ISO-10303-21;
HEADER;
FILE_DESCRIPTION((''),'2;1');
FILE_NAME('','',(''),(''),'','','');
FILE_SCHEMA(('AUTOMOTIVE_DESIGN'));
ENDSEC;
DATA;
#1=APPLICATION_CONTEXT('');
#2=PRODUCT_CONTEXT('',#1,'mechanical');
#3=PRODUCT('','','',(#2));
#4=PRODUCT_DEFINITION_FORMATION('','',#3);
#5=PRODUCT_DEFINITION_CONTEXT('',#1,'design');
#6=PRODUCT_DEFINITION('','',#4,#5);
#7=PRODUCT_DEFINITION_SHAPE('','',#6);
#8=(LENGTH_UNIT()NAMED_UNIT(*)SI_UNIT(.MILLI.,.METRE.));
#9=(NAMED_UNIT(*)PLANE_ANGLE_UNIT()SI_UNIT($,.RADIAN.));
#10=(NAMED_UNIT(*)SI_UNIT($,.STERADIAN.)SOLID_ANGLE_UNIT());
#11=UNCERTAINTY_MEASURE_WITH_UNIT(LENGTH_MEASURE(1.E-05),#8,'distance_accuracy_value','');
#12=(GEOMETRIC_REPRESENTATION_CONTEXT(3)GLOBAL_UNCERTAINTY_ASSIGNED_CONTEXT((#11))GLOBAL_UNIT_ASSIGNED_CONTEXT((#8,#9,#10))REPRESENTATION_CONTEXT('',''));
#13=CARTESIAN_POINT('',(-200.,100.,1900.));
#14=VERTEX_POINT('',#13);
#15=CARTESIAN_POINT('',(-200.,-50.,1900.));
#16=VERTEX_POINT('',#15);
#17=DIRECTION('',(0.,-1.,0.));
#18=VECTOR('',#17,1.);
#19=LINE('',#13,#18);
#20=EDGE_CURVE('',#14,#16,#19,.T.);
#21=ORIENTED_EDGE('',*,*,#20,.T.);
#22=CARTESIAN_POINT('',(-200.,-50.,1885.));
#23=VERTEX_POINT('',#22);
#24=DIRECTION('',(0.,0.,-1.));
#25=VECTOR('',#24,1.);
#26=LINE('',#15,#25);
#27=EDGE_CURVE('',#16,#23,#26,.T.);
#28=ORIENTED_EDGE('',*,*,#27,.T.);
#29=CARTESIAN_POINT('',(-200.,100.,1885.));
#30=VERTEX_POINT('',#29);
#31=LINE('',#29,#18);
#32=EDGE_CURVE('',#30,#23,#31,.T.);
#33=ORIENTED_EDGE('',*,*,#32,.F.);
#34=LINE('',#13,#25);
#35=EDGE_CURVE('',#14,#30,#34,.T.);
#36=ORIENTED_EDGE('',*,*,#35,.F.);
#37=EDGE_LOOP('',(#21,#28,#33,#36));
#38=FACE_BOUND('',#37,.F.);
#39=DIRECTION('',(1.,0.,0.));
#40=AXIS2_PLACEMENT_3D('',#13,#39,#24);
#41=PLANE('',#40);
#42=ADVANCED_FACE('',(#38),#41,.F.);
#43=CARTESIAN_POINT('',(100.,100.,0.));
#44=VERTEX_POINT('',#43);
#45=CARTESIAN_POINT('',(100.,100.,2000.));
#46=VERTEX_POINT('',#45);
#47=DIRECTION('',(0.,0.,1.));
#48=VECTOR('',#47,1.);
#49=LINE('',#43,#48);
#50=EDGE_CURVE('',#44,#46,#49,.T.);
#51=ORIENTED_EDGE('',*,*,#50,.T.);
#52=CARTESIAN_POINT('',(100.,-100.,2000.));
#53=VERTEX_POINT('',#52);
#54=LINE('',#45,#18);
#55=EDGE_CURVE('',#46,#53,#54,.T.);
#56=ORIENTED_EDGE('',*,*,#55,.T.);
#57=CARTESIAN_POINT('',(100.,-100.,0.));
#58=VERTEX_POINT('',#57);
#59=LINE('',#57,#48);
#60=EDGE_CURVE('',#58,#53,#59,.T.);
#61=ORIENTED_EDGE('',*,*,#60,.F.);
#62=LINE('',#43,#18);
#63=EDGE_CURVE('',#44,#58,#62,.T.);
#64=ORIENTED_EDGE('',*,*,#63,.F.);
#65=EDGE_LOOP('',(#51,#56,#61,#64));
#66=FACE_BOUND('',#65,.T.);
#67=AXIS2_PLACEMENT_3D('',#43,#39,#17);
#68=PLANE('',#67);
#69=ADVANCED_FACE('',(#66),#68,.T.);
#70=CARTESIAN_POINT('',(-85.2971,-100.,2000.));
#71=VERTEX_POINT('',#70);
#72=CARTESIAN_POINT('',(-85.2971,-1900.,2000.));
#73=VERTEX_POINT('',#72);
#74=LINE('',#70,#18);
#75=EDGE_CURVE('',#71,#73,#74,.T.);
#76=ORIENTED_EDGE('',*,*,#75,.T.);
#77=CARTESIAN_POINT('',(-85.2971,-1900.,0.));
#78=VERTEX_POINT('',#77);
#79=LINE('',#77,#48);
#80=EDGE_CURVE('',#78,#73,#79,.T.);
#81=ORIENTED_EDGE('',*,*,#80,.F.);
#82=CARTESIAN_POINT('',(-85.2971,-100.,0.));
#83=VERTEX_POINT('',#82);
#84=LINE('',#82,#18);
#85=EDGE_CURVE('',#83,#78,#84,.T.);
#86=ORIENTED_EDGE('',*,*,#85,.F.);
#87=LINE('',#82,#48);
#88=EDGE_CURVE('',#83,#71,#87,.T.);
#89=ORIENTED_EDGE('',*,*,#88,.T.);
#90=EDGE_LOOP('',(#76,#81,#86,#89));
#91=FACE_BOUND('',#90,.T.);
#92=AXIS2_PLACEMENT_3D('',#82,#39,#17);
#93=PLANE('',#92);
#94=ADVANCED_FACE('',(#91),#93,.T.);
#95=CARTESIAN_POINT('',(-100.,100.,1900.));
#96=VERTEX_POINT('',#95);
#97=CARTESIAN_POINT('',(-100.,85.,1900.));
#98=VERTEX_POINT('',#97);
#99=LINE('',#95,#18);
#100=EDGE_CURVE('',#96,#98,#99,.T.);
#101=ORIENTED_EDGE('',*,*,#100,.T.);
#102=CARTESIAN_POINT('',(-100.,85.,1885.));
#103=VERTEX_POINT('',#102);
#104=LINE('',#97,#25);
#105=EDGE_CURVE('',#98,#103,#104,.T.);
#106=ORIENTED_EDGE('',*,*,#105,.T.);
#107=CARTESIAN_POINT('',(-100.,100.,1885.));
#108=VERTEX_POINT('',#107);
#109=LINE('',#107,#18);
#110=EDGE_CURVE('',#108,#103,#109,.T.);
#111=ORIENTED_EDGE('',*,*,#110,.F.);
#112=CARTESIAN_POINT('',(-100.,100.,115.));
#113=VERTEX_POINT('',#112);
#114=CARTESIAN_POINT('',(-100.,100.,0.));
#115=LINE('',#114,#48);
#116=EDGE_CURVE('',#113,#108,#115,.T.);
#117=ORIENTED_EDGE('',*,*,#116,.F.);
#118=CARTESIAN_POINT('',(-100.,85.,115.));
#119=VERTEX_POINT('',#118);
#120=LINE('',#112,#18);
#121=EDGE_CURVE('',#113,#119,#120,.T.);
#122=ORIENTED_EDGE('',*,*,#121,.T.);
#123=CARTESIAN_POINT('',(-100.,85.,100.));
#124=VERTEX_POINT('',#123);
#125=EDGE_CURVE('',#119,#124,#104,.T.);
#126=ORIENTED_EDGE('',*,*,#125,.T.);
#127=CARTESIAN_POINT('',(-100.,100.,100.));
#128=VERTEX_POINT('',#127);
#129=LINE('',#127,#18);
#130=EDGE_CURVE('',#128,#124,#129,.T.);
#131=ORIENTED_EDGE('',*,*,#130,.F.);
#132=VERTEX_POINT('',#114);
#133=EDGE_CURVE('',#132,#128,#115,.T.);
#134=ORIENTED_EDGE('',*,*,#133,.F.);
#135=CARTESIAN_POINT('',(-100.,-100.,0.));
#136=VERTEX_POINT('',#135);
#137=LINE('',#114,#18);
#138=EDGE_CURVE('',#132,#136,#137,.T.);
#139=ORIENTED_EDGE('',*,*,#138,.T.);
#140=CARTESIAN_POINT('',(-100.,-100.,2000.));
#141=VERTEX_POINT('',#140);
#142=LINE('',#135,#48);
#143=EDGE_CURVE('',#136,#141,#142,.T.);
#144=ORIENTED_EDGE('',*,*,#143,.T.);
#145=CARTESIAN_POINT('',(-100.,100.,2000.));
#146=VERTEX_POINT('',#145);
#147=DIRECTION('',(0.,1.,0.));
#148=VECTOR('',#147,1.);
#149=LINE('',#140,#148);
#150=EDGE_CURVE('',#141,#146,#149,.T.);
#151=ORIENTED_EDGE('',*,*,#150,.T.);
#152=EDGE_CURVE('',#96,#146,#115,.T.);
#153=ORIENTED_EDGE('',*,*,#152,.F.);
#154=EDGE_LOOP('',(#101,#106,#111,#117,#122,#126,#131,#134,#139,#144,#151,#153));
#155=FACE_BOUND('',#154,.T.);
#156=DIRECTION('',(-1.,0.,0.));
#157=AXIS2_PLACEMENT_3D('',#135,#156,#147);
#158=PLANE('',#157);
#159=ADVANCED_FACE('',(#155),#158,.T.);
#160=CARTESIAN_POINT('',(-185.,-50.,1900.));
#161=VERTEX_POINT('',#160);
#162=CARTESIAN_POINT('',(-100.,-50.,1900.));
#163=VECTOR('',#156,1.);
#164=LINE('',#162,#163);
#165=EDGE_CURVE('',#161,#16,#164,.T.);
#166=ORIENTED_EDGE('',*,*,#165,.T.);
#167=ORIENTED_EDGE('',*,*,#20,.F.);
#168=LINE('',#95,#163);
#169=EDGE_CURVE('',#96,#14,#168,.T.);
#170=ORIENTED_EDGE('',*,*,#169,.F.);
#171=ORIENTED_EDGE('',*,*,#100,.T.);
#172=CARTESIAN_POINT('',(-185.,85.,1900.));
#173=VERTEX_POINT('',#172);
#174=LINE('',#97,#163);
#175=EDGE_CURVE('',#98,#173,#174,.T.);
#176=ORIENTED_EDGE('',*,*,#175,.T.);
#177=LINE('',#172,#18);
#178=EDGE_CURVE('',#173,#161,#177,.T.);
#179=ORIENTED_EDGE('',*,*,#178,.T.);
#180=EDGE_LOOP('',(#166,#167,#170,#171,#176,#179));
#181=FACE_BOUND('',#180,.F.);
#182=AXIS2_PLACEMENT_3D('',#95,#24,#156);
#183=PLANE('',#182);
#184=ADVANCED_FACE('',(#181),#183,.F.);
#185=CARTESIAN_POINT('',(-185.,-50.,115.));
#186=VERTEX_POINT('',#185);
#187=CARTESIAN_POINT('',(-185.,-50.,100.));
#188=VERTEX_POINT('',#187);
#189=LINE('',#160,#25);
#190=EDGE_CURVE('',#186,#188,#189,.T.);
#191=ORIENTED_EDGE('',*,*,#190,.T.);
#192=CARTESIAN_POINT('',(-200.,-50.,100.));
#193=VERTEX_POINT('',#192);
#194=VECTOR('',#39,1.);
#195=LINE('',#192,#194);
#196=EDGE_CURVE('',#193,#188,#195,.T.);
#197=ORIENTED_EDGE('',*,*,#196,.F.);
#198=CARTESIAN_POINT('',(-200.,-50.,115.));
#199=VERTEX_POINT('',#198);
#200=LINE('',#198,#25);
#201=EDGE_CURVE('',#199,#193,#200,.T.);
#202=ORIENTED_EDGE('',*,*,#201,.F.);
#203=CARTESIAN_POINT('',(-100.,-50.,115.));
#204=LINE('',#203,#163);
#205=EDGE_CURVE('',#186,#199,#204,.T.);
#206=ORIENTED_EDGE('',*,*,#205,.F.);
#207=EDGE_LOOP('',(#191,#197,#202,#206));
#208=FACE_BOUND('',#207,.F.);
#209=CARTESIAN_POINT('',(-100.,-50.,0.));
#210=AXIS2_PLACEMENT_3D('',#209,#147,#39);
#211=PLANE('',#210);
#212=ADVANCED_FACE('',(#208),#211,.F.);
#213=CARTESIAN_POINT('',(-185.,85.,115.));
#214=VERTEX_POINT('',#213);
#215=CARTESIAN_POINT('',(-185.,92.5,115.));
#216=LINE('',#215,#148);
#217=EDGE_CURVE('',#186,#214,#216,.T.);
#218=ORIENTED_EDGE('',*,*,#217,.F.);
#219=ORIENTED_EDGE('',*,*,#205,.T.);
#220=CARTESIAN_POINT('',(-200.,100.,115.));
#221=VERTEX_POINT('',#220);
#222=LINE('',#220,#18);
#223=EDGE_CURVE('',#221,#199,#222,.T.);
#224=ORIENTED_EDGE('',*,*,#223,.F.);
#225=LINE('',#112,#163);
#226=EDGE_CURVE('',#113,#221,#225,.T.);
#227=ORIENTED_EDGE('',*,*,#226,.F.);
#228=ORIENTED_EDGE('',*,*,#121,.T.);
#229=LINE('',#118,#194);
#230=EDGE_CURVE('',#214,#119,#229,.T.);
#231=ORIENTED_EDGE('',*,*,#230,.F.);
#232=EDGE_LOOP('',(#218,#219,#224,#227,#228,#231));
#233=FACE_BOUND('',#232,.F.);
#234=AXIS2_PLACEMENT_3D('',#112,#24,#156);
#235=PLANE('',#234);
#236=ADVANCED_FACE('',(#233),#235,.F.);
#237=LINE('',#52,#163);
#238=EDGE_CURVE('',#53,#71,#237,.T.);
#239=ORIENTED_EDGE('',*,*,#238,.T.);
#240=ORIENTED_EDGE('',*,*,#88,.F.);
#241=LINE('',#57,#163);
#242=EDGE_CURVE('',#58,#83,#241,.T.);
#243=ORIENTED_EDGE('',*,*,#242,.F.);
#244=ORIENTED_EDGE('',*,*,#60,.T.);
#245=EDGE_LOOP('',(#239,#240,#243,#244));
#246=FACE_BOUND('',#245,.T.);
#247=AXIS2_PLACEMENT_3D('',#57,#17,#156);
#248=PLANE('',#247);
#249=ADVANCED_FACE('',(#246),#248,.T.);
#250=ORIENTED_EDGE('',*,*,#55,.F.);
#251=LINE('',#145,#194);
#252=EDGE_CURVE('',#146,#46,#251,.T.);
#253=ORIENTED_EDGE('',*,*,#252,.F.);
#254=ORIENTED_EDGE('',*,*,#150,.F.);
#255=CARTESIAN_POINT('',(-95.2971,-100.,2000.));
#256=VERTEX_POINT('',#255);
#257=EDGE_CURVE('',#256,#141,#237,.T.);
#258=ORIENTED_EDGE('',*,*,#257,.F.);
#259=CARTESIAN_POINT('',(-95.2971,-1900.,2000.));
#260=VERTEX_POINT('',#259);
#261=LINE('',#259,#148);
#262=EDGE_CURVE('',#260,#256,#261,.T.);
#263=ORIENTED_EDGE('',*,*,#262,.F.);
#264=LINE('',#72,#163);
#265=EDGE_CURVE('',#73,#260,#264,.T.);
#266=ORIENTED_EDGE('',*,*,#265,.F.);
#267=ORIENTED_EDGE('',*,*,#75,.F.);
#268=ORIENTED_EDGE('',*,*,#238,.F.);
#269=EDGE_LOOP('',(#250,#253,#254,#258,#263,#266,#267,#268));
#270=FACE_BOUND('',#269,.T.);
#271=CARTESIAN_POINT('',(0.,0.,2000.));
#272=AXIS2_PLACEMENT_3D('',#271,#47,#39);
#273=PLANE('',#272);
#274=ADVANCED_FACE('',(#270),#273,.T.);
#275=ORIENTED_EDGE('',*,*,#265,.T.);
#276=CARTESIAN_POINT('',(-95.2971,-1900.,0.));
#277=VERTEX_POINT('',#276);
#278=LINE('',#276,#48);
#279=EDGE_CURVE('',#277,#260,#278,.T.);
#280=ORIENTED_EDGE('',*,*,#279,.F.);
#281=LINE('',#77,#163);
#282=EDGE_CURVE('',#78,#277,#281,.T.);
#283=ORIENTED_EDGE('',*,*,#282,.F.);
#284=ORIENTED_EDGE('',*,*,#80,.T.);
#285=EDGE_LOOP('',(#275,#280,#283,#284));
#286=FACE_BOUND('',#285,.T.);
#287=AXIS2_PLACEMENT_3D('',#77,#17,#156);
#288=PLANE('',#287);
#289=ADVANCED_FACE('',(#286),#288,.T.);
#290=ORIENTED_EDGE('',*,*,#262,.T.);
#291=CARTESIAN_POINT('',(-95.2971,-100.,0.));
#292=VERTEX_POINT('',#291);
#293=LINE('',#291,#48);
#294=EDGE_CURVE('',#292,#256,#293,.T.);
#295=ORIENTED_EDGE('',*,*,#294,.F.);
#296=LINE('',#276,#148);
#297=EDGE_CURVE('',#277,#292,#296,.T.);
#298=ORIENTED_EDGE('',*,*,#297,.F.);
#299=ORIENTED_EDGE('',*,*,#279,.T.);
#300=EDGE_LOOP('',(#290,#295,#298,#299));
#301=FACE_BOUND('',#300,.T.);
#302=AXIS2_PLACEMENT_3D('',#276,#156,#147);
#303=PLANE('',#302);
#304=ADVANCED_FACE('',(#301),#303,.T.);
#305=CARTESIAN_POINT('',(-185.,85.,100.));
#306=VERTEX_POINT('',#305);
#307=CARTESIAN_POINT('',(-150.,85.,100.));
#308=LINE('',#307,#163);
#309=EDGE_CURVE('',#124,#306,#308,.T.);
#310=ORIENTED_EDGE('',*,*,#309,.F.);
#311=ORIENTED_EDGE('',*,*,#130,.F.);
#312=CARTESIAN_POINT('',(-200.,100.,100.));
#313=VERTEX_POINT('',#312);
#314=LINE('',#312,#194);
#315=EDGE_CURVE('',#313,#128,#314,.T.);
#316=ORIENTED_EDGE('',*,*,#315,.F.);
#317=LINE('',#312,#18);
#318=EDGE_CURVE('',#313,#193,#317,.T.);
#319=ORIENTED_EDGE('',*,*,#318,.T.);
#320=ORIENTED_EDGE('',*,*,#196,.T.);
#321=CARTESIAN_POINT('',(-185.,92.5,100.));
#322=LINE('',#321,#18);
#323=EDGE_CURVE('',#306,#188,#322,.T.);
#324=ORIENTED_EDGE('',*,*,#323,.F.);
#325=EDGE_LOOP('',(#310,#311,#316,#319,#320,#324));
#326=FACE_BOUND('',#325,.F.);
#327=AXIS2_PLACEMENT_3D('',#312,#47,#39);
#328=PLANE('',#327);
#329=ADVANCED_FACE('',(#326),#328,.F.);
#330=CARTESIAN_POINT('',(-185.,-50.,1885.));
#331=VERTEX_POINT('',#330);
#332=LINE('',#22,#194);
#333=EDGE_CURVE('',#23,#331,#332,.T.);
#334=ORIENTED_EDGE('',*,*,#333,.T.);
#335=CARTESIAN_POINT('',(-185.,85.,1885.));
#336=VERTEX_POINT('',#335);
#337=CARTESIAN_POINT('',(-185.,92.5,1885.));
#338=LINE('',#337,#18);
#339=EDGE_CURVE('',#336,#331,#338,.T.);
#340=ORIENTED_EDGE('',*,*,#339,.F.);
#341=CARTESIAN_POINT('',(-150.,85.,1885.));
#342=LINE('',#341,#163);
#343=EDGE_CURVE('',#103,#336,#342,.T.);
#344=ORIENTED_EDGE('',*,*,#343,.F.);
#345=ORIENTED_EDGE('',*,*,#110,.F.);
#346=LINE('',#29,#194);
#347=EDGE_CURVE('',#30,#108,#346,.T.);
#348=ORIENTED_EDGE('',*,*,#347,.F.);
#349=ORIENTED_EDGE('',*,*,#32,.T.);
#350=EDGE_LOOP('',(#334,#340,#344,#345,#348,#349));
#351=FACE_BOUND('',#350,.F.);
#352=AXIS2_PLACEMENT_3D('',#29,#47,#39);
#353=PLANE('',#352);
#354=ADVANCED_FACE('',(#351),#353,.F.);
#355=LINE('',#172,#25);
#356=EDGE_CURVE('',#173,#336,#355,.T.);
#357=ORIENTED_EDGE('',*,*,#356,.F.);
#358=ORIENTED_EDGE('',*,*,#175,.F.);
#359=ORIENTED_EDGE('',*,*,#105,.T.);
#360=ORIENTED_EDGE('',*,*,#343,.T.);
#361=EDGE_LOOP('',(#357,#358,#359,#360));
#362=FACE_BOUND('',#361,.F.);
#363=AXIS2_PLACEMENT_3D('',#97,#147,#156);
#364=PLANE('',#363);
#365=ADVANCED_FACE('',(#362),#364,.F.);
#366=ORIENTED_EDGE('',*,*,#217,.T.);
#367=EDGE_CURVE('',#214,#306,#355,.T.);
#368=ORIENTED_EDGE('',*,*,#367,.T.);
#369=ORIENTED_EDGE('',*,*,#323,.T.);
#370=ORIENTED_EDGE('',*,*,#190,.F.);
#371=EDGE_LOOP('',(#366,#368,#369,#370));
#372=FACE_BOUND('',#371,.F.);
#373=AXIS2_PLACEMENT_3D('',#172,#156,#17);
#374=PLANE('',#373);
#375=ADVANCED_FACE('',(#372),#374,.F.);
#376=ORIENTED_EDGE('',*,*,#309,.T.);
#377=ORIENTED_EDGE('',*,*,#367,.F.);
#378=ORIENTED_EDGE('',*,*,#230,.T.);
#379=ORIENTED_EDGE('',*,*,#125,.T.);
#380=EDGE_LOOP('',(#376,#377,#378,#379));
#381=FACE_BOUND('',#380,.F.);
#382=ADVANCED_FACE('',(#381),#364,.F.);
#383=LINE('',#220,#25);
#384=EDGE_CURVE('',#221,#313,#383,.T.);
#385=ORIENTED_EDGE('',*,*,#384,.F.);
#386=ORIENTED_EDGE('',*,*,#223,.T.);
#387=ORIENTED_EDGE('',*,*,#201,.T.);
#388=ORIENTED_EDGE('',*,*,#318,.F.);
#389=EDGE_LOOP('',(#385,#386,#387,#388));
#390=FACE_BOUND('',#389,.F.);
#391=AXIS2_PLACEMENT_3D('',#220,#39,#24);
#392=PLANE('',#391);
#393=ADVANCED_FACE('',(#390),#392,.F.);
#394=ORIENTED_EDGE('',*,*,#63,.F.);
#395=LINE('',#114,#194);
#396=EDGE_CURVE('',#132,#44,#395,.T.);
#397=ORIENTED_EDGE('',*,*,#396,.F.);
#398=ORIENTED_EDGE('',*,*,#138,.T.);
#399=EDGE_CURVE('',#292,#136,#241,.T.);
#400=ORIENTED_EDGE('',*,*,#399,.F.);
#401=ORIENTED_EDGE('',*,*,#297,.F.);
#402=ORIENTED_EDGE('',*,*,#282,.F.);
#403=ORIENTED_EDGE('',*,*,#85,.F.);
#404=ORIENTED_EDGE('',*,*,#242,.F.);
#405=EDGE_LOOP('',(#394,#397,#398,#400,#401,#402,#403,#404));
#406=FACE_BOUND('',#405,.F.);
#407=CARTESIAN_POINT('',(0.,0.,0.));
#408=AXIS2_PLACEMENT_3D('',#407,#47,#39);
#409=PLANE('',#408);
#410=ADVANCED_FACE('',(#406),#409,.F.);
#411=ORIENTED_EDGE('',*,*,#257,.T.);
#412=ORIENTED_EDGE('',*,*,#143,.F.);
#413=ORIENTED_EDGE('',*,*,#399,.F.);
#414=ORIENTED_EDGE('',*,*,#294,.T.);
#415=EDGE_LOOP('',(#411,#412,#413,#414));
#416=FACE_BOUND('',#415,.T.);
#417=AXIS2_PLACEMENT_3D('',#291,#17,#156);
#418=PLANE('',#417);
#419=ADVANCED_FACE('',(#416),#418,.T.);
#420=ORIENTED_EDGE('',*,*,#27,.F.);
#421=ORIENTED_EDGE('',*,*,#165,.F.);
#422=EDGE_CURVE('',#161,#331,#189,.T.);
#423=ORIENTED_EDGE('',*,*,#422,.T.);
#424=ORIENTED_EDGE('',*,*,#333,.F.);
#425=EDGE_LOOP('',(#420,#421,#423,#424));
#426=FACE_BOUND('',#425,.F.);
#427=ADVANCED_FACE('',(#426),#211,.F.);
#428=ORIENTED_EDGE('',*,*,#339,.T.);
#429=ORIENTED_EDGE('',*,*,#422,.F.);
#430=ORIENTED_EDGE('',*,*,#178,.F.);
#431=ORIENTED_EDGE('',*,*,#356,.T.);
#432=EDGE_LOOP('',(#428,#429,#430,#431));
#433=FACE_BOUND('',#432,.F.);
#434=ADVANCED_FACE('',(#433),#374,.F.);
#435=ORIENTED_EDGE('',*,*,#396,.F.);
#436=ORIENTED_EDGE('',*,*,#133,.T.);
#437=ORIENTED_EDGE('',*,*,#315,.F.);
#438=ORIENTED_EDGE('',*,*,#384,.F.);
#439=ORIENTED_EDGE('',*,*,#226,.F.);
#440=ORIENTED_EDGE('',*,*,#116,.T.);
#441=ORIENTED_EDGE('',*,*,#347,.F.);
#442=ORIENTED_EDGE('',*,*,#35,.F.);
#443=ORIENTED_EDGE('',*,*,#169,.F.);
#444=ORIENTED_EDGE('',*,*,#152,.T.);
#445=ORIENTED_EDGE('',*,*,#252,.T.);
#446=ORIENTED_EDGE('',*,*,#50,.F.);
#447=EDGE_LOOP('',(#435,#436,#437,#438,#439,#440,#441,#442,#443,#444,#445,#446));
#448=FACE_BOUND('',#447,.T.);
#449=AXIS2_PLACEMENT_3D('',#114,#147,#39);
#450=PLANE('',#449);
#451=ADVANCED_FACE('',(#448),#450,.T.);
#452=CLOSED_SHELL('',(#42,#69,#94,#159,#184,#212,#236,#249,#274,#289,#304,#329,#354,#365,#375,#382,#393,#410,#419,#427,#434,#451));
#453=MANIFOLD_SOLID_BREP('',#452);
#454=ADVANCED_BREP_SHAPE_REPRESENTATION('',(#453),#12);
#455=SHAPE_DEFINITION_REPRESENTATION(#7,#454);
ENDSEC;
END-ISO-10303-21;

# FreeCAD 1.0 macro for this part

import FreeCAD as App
import Part
import Sketcher
Q = App.Units.Quantity


def add_polygon(sketch, points):
    """Adds a closed chain of lines whose ends are joined by coincident constraints."""
    first, n = sketch.GeometryCount, len(points)
    for a, b in zip(points, points[1:] + points[:1]):
        sketch.addGeometry(Part.LineSegment(App.Vector(*a, 0), App.Vector(*b, 0)), False)
    for i in range(n):
        sketch.addConstraint(Sketcher.Constraint("Coincident", first + i, 2, first + (i + 1) % n, 1))

doc = App.newDocument("Part")
body = doc.addObject("PartDesign::Body", "Body")

sketch1 = doc.addObject("Sketcher::SketchObject", "Sketch")
body.addObject(sketch1)
sketch1.AttachmentSupport = (doc.XY_Plane, [""])
sketch1.MapMode = "FlatFace"
add_polygon(sketch1, [(100, 100), (-100, 100), (-100, -100), (-95.3, -100), (-95.3, -1900), (-85.3, -1900), (-85.3, -100), (100, -100)])
sketch1.addConstraint([
    Sketcher.Constraint("Horizontal", 0),
    Sketcher.Constraint("Vertical", 1),
    Sketcher.Constraint("Horizontal", 2),
    Sketcher.Constraint("Vertical", 3),
    Sketcher.Constraint("Horizontal", 4),
    Sketcher.Constraint("Vertical", 5),
    Sketcher.Constraint("Horizontal", 6),
    Sketcher.Constraint("Vertical", 7),
    Sketcher.Constraint("Symmetric", 0, 2, 6, 2, -1, 1),
    Sketcher.Constraint("Horizontal", 2, 2, 5, 2),
    Sketcher.Constraint("Equal", 0, 1),
    Sketcher.Constraint("DistanceX", 0, 2, 0, 1, Q("200 mm")),
    Sketcher.Constraint("DistanceX", 4, 1, 4, 2, Q("10 mm")),
    Sketcher.Constraint("DistanceY", 3, 2, 3, 1, Q("1800 mm")),
    Sketcher.Constraint("DistanceX", 2, 1, 2, 2, Q("4.703 mm")),
])
pad1 = doc.addObject("PartDesign::Pad", "Pad")
body.addObject(pad1)
pad1.Profile = sketch1
pad1.Length = 2000

sketch2 = doc.addObject("Sketcher::SketchObject", "Sketch001")
body.addObject(sketch2)
sketch2.AttachmentSupport = (doc.XZ_Plane, [""])
sketch2.MapMode = "FlatFace"
sketch2.AttachmentOffset = App.Placement(App.Vector(0, 0, -100), App.Rotation())
add_polygon(sketch2, [(-100, 1900), (-100, 1885), (-200, 1885), (-200, 1900)])
add_polygon(sketch2, [(-100, 115), (-100, 100), (-200, 100), (-200, 115)])
sketch2.addConstraint([
    Sketcher.Constraint("Vertical", 0),
    Sketcher.Constraint("Horizontal", 1),
    Sketcher.Constraint("Vertical", 2),
    Sketcher.Constraint("Horizontal", 3),
    Sketcher.Constraint("Vertical", 4),
    Sketcher.Constraint("Horizontal", 5),
    Sketcher.Constraint("Vertical", 6),
    Sketcher.Constraint("Horizontal", 7),
    Sketcher.Constraint("Vertical", 3, 2, 4, 2),
    Sketcher.Constraint("Vertical", 2, 2, 5, 2),
    Sketcher.Constraint("Equal", 2, 4),
    Sketcher.Constraint("DistanceX", 1, 2, 1, 1, Q("100 mm")),
    Sketcher.Constraint("DistanceY", 0, 2, 0, 1, Q("15 mm")),
    Sketcher.Constraint("DistanceX", 0, 2, -1, 1, Q("100 mm")),
    Sketcher.Constraint("DistanceY", -1, 1, 4, 2, Q("100 mm")),
    Sketcher.Constraint("DistanceY", -1, 1, 0, 2, Q("1885 mm")),
])
pad2 = doc.addObject("PartDesign::Pad", "Pad001")
body.addObject(pad2)
pad2.Profile = sketch2
pad2.Length = 150

sketch3 = doc.addObject("Sketcher::SketchObject", "Sketch002")
body.addObject(sketch3)
sketch3.AttachmentSupport = (doc.XY_Plane, [""])
sketch3.MapMode = "FlatFace"
sketch3.AttachmentOffset = App.Placement(App.Vector(0, 0, 1900), App.Rotation())
add_polygon(sketch3, [(-185, 85), (-185, -50), (-100, -50), (-100, 85)])
sketch3.addConstraint([
    Sketcher.Constraint("Vertical", 0),
    Sketcher.Constraint("Horizontal", 1),
    Sketcher.Constraint("Vertical", 2),
    Sketcher.Constraint("Horizontal", 3),
    Sketcher.Constraint("DistanceX", 1, 1, 1, 2, Q("85 mm")),
    Sketcher.Constraint("DistanceY", 0, 2, 0, 1, Q("135 mm")),
    Sketcher.Constraint("DistanceX", 0, 2, -1, 1, Q("185 mm")),
    Sketcher.Constraint("DistanceY", 0, 2, -1, 1, Q("50 mm")),
])
pocket1 = doc.addObject("PartDesign::Pocket", "Pocket")
body.addObject(pocket1)
pocket1.Profile = sketch3
pocket1.Type = "ThroughAll"

doc.recompute()
